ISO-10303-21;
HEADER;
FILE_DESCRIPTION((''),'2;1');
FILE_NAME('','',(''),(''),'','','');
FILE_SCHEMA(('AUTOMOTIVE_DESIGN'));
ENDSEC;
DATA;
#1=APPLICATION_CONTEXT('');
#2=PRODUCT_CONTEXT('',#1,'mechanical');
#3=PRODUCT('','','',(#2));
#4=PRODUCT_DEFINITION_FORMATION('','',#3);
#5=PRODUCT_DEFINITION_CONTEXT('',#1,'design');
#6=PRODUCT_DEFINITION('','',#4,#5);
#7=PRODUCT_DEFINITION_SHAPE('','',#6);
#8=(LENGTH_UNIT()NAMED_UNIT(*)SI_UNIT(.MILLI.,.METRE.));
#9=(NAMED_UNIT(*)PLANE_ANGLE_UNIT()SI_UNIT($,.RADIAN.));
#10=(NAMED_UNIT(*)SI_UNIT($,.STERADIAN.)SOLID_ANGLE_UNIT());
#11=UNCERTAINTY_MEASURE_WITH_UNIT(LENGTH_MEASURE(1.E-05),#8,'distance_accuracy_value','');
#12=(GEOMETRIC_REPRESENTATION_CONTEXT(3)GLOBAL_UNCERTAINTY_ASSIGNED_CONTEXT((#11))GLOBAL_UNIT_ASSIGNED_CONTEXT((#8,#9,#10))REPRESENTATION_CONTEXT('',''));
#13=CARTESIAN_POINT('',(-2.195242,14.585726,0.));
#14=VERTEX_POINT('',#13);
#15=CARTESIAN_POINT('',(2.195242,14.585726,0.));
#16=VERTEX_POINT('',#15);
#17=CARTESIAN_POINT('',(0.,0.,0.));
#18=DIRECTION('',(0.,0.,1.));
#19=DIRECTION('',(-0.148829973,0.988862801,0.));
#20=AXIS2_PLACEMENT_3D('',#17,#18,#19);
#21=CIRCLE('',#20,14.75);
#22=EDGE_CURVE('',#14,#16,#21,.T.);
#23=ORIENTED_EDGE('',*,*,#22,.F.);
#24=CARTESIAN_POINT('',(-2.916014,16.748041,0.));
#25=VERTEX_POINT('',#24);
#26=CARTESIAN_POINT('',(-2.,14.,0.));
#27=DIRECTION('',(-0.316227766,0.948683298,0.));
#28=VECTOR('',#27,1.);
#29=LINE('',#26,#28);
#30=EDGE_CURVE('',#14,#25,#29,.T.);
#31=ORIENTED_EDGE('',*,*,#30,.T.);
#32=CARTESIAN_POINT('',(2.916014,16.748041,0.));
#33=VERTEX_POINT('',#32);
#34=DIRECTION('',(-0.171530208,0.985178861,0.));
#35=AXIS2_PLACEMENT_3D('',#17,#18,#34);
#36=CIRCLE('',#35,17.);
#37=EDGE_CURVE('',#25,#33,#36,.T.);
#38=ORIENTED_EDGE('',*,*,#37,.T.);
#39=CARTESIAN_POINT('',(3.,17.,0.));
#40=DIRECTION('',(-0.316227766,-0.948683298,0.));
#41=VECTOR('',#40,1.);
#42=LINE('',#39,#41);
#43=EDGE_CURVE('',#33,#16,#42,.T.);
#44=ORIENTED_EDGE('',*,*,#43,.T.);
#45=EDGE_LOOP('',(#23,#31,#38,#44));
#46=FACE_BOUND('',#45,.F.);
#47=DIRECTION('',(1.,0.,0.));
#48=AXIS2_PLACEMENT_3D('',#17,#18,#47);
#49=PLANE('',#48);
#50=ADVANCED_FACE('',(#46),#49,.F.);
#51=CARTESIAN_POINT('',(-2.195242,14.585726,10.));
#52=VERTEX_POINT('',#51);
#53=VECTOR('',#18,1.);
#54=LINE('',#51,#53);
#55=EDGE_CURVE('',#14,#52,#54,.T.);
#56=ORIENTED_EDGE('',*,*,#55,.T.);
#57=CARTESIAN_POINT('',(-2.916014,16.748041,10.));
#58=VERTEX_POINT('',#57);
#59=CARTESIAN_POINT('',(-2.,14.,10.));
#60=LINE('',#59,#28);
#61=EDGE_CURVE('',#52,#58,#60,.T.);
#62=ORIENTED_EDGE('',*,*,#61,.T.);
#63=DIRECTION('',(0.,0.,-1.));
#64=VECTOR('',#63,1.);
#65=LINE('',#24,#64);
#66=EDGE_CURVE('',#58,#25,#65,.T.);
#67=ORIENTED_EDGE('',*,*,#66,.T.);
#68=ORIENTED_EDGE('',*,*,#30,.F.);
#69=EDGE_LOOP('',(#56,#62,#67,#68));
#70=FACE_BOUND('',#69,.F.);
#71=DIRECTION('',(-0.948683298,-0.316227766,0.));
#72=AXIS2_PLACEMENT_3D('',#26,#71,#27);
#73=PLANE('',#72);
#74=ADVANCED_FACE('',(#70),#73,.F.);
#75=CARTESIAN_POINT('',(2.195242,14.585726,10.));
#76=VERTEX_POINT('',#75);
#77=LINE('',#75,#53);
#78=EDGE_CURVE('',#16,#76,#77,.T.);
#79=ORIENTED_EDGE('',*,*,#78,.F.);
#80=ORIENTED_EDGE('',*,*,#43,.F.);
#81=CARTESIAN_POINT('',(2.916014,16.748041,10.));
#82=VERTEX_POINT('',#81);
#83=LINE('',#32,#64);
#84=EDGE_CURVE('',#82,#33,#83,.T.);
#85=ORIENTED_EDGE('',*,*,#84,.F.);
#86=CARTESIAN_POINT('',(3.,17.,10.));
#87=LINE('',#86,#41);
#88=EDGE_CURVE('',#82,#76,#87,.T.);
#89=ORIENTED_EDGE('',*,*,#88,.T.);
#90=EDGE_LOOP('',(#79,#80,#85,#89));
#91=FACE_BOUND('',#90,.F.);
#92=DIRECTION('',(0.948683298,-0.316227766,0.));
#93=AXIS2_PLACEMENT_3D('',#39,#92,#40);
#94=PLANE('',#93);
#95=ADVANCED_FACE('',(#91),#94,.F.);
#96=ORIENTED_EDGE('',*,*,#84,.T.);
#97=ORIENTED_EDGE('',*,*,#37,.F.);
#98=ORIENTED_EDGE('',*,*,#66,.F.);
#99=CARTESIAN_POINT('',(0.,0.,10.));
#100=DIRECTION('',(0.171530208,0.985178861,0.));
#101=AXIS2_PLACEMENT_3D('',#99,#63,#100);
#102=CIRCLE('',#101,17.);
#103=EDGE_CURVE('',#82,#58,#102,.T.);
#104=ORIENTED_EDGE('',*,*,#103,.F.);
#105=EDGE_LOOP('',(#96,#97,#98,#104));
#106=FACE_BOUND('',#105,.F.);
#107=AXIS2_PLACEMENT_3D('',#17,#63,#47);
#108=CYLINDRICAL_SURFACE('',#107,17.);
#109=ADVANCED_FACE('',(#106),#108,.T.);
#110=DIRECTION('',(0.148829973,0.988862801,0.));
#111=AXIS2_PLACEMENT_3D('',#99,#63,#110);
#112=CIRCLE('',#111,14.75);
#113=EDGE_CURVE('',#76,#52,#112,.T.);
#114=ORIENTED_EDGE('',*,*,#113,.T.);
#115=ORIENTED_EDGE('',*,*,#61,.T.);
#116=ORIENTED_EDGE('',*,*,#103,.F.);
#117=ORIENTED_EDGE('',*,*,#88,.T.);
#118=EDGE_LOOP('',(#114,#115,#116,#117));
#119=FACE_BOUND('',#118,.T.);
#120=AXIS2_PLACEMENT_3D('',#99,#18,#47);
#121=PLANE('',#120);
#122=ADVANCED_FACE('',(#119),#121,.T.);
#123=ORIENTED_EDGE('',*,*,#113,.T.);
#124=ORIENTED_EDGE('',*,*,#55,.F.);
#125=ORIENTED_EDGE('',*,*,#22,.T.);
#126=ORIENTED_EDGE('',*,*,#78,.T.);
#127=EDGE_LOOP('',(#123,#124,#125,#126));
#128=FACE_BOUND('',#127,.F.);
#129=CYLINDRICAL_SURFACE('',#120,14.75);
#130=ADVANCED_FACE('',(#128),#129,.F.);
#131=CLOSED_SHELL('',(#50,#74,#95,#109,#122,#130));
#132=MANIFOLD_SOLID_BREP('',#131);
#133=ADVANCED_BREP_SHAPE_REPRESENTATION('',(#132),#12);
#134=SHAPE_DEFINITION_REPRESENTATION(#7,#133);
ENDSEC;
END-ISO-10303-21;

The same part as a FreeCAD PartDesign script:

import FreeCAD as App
import Part
import Sketcher
from FreeCAD import Vector
Q = App.Units.Quantity


def add_polygon(sketch, points):
    """Adds a closed chain of lines whose ends are joined by coincident constraints."""
    first, n = sketch.GeometryCount, len(points)
    for a, b in zip(points, points[1:] + points[:1]):
        sketch.addGeometry(Part.LineSegment(App.Vector(*a, 0), App.Vector(*b, 0)), False)
    for i in range(n):
        sketch.addConstraint(Sketcher.Constraint("Coincident", first + i, 2, first + (i + 1) % n, 1))

doc = App.newDocument("Part")
params = doc.addObject("Spreadsheet::Sheet", "Params")
for row, (alias, value) in enumerate([
    ("sketch1_width", "6 mm"),
    ("sketch1_width2", "4 mm"),
    ("pad1_length", "10 mm"),
    ("sketch2_diameter", "34 mm"),
    ("pad2_length", "10 mm"),
    ("sketch3_diameter", "29.5 mm"),
    ("pocket1_length", "10 mm"),
], start=1):
    params.set(f"A{row}", alias)
    params.set(f"B{row}", "=" + value)
    params.setAlias(f"B{row}", alias)

body = doc.addObject("PartDesign::Body", "Body")

# Sketch on XY plane
sketch1 = doc.addObject("Sketcher::SketchObject", "Sketch")
body.addObject(sketch1)
sketch1.AttachmentSupport = (doc.XY_Plane, [""])
sketch1.MapMode = "FlatFace"
add_polygon(sketch1, [(3, 17), (-3, 17), (-2, 14), (2, 14)])  # lines 0-3
sketch1.addConstraint([
    Sketcher.Constraint("Horizontal", 0),
    Sketcher.Constraint("Horizontal", 2),
    Sketcher.Constraint("Equal", 1, 3),
    Sketcher.Constraint("DistanceX", 0, 2, 0, 1, Q("6 mm")),
    Sketcher.Constraint("DistanceX", 2, 1, 2, 2, Q("4 mm")),
    Sketcher.Constraint("DistanceX", 0, 2, -1, 1, Q("3 mm")),
    Sketcher.Constraint("DistanceY", -1, 1, 0, 2, Q("17 mm")),
    Sketcher.Constraint("DistanceY", -1, 1, 1, 2, Q("14 mm")),
])
sketch1.setExpression("Constraints[7]", "Params.sketch1_width")
sketch1.setExpression("Constraints[8]", "Params.sketch1_width2")
pad1 = doc.addObject("PartDesign::Pad", "Pad")
body.addObject(pad1)
pad1.Profile = sketch1
pad1.setExpression("Length", "Params.pad1_length")
body2 = doc.addObject("PartDesign::Body", "Body001")

# Sketch on XY plane
sketch2 = doc.addObject("Sketcher::SketchObject", "Sketch001")
body2.addObject(sketch2)
sketch2.AttachmentSupport = (doc.getObject("XY_Plane001"), [""])
sketch2.MapMode = "FlatFace"
sketch2.addGeometry(Part.Circle(Vector(0, 0, 0), Vector(0, 0, 1), 17), False)
sketch2.addConstraint([
    Sketcher.Constraint("Coincident", 0, 3, -1, 1),
    Sketcher.Constraint("Diameter", 0, Q("34 mm")),
])
sketch2.setExpression("Constraints[1]", "Params.sketch2_diameter")
pad2 = doc.addObject("PartDesign::Pad", "Pad001")
body2.addObject(pad2)
pad2.Profile = sketch2
pad2.setExpression("Length", "Params.pad2_length")

# Sketch on XY plane
sketch3 = doc.addObject("Sketcher::SketchObject", "Sketch002")
body2.addObject(sketch3)
sketch3.AttachmentSupport = (doc.getObject("XY_Plane001"), [""])
sketch3.MapMode = "FlatFace"
sketch3.AttachmentOffset = App.Placement(Vector(0, 0, 10), App.Rotation())
sketch3.addGeometry(Part.Circle(Vector(0, 0, 0), Vector(0, 0, 1), 15), False)
sketch3.addConstraint([
    Sketcher.Constraint("Coincident", 0, 3, -1, 1),
    Sketcher.Constraint("Diameter", 0, Q("29.5 mm")),
])
sketch3.setExpression("Constraints[1]", "Params.sketch3_diameter")
pocket1 = doc.addObject("PartDesign::Pocket", "Pocket")
body2.addObject(pocket1)
pocket1.Profile = sketch3
pocket1.setExpression("Length", "Params.pocket1_length")
doc.recompute()

boolean = doc.addObject("PartDesign::Boolean", "Boolean")
body2.addObject(boolean)
boolean.Type = "Cut"
boolean.addObjects([body])

doc.recompute()
